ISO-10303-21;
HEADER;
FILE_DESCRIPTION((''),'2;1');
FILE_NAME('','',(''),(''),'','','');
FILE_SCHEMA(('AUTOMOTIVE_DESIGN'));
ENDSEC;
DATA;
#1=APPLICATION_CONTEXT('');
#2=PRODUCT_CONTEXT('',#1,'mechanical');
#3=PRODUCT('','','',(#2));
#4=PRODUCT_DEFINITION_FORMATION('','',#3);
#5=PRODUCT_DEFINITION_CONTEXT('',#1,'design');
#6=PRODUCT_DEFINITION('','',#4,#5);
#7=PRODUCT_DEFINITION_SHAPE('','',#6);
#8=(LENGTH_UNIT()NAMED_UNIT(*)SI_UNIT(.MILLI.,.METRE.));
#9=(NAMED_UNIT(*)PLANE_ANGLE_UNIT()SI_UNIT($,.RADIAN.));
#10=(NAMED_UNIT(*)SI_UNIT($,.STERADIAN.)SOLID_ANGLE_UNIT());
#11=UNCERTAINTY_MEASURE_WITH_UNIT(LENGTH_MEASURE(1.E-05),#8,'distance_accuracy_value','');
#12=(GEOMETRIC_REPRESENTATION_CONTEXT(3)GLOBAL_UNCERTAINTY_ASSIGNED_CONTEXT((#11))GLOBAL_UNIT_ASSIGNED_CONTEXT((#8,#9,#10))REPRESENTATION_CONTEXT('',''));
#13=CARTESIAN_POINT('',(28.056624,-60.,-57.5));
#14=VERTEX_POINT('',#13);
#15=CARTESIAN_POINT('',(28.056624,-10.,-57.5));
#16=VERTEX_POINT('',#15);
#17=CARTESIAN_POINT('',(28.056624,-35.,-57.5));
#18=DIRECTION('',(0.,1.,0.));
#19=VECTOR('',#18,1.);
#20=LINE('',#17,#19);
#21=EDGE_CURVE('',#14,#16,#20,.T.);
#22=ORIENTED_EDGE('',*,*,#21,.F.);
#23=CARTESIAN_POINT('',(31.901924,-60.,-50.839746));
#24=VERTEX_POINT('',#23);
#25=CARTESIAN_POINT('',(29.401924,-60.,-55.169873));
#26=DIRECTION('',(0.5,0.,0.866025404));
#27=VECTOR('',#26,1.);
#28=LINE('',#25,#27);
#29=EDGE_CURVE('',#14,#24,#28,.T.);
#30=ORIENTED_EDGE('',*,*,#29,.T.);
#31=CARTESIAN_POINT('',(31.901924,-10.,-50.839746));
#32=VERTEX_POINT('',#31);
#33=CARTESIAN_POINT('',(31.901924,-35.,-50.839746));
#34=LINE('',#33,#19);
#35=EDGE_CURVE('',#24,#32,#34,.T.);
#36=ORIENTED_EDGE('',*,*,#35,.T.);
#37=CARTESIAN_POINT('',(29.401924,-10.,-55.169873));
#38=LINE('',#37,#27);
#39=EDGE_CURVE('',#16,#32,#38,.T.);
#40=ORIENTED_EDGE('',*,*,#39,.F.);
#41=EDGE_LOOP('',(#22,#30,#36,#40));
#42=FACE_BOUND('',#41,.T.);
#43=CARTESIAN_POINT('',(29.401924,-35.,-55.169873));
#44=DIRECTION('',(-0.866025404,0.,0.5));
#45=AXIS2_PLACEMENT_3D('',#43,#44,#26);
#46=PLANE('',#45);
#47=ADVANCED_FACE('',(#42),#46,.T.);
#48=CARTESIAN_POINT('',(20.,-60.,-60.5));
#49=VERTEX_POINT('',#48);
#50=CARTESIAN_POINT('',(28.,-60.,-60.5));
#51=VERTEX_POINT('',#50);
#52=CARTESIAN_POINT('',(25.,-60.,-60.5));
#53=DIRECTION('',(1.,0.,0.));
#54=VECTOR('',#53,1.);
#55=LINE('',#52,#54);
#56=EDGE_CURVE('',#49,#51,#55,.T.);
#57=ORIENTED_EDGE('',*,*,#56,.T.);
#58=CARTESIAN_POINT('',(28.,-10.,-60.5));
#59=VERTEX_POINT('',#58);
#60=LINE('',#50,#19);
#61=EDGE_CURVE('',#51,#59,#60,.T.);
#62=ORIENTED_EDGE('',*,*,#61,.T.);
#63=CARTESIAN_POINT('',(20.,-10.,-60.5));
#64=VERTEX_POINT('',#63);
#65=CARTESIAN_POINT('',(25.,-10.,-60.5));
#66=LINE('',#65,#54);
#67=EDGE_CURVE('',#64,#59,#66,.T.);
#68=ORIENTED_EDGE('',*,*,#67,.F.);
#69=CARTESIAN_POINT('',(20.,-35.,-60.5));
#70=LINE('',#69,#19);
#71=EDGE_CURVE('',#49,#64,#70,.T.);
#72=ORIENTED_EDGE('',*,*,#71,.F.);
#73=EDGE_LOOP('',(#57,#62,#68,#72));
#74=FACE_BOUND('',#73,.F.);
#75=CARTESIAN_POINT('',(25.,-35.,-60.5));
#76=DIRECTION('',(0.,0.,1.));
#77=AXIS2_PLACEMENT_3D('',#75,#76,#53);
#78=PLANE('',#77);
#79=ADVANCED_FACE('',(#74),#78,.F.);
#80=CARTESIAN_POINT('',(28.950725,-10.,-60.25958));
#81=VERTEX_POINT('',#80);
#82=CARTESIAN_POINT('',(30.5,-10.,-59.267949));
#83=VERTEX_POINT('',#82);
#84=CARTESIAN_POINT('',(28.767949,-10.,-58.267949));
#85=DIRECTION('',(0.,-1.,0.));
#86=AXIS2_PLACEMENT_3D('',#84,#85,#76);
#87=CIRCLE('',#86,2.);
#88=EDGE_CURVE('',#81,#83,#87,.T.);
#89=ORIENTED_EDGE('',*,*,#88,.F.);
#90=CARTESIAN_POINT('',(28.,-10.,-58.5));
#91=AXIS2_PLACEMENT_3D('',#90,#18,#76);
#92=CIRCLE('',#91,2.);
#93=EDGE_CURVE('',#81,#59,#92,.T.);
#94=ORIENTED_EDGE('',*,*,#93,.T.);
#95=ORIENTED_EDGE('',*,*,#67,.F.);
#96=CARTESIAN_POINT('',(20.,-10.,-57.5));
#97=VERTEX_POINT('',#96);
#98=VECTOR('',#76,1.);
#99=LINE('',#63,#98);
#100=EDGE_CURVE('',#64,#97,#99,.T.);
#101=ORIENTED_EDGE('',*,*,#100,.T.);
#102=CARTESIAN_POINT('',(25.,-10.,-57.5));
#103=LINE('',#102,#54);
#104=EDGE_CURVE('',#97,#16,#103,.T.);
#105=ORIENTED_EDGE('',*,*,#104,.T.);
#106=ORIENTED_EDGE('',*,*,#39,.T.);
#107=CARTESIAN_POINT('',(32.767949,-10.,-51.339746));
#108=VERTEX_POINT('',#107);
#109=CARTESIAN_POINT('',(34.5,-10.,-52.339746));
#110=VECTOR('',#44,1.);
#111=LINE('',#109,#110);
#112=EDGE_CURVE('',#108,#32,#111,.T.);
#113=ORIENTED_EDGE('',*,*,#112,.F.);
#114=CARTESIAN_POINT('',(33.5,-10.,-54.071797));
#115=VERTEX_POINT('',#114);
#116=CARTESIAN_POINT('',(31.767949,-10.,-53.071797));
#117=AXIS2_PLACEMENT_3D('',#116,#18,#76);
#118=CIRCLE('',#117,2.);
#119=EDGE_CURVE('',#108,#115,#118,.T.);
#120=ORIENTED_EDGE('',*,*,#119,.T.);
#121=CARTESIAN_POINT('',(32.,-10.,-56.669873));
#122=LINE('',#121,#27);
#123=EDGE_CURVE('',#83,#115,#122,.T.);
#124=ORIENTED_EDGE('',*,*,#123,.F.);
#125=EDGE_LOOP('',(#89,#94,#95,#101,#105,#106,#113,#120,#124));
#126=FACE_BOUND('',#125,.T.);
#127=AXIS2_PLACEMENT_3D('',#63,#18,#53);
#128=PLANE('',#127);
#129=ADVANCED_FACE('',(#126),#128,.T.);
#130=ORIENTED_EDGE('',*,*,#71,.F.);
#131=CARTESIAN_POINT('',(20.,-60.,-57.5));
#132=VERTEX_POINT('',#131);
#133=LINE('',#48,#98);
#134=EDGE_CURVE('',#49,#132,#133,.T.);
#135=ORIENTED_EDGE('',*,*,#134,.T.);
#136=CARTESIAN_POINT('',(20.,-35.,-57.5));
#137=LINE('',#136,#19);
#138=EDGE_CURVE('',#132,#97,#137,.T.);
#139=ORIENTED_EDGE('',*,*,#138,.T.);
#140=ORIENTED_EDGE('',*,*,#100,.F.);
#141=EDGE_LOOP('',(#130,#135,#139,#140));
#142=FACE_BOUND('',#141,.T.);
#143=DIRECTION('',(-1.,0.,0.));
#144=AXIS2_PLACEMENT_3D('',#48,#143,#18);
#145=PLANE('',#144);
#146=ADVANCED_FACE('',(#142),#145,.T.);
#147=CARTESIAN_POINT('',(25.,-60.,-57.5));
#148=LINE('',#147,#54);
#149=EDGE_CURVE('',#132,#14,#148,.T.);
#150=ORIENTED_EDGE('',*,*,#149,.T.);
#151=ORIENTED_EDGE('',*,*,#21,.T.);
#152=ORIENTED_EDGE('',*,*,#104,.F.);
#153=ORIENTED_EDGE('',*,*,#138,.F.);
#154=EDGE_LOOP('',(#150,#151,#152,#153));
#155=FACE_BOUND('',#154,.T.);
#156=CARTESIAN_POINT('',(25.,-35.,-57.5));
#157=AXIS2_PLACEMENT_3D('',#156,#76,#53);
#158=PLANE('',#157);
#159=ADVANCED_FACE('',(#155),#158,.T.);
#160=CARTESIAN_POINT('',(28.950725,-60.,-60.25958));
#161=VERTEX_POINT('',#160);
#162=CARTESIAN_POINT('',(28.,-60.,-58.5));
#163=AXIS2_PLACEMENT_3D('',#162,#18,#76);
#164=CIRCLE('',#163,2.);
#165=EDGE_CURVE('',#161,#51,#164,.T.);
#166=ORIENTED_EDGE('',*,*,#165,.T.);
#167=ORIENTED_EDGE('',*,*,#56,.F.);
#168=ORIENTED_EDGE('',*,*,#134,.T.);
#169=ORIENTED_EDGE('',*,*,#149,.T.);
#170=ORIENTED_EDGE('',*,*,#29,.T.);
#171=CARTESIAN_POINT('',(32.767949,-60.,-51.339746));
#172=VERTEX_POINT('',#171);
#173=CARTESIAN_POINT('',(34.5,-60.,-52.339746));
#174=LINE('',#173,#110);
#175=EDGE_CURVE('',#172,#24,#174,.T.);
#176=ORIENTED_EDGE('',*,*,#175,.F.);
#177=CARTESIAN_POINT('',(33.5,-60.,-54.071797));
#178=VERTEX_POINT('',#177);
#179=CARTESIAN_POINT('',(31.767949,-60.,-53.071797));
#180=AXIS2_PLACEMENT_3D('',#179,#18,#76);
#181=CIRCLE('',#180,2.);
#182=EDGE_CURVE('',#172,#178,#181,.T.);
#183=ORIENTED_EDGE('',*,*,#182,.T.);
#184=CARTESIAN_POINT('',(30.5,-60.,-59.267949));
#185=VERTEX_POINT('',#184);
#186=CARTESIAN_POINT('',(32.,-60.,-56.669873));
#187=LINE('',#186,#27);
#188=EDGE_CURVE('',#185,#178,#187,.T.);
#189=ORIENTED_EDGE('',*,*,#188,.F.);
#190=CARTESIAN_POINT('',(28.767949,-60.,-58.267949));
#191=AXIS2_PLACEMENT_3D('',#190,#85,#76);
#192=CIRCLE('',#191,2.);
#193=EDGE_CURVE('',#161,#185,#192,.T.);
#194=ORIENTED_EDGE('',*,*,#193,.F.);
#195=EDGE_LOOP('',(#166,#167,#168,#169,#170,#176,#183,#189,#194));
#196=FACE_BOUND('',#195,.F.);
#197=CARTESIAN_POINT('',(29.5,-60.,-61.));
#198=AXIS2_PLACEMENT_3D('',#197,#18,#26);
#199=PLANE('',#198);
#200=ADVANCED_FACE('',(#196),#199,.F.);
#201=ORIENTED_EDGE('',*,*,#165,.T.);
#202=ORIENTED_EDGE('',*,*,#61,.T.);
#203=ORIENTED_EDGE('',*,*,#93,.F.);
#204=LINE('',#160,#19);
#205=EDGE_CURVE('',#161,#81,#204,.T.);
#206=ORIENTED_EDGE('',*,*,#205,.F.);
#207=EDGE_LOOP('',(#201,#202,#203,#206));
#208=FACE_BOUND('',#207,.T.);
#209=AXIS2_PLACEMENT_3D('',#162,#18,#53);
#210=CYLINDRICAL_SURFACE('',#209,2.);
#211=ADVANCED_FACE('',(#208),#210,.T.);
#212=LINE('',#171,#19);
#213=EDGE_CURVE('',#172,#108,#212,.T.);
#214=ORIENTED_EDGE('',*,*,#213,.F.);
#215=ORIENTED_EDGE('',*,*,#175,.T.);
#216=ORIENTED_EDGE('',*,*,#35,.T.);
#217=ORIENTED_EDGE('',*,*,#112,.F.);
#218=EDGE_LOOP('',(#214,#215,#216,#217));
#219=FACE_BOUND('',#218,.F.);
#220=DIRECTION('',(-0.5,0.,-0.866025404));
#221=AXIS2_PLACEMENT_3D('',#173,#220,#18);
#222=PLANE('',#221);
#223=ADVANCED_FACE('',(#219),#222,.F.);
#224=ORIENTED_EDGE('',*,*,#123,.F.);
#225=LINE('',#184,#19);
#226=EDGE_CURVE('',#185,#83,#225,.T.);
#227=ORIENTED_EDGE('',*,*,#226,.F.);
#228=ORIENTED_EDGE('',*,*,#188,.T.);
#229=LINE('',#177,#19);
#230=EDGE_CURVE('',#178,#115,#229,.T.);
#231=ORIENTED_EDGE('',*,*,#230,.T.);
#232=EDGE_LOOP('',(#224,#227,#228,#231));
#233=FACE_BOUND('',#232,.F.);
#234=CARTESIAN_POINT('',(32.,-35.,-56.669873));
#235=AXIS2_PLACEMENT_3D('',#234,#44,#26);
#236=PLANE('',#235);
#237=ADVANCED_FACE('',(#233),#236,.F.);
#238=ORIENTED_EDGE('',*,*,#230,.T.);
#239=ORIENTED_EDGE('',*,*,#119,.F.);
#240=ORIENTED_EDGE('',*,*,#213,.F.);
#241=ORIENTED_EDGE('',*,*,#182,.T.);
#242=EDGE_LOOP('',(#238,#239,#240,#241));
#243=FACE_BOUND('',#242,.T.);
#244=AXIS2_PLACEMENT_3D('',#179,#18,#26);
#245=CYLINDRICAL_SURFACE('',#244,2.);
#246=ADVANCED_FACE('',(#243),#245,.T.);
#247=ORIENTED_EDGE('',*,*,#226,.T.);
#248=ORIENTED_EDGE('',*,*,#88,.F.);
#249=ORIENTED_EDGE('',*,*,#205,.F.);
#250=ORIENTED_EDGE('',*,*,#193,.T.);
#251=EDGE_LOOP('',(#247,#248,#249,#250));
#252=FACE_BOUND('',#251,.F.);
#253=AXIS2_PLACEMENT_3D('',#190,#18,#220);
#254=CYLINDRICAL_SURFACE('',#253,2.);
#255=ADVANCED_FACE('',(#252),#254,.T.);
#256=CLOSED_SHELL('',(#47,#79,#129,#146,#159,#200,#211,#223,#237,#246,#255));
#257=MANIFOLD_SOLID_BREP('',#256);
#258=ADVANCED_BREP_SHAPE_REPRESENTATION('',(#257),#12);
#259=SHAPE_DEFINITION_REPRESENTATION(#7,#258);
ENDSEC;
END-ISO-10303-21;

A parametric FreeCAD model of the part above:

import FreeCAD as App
import Part
import Sketcher
Q = App.Units.Quantity


def edges_at(feature, points):
    """Names of the edges that pass closest to the given points."""
    edges = feature.Shape.Edges
    near = lambda p: min(range(len(edges)), key=lambda i: edges[i].distToShape(Part.Vertex(*p))[0])
    return sorted({f"Edge{near(p) + 1}" for p in points})


def add_polygon(sketch, points):
    """Adds a closed chain of lines whose ends are joined by coincident constraints."""
    first, n = sketch.GeometryCount, len(points)
    for a, b in zip(points, points[1:] + points[:1]):
        sketch.addGeometry(Part.LineSegment(App.Vector(*a, 0), App.Vector(*b, 0)), False)
    for i in range(n):
        sketch.addConstraint(Sketcher.Constraint("Coincident", first + i, 2, first + (i + 1) % n, 1))

doc = App.newDocument("Part")
body = doc.addObject("PartDesign::Body", "Body")

# Sketch on XY plane
sketch1 = body.newObject("Sketcher::SketchObject", "Sketch")
sketch1.AttachmentSupport = (doc.getObject("XY_Plane"), [""])
sketch1.MapMode = "FlatFace"
sketch1.AttachmentOffset = App.Placement(App.Vector(0, 0, -60.5), App.Rotation())
add_polygon(sketch1, [(20, -10), (20, -60), (30, -60), (30, -10)])  # lines 0-3
sketch1.addConstraint([
    Sketcher.Constraint("Vertical", 0),
    Sketcher.Constraint("Horizontal", 1),
    Sketcher.Constraint("Vertical", 2),
    Sketcher.Constraint("Horizontal", 3),
    Sketcher.Constraint("DistanceX", 1, 1, 1, 2, Q("10 mm")),
    Sketcher.Constraint("DistanceY", 0, 2, 0, 1, Q("50 mm")),
    Sketcher.Constraint("DistanceX", -1, 1, 0, 2, Q("20 mm")),
    Sketcher.Constraint("DistanceY", 0, 2, -1, 1, Q("60 mm")),
])
pad1 = body.newObject("PartDesign::Pad", "Pad")
pad1.Profile = sketch1
pad1.Length = 3
doc.recompute()

fillet = body.newObject("PartDesign::Fillet", "Fillet")
fillet.Base = (pad1, edges_at(pad1, [(30, -35, -60.5)]))
fillet.Radius = 2
body2 = doc.addObject("PartDesign::Body", "Body001")

# Sketch on XY plane
sketch2 = body2.newObject("Sketcher::SketchObject", "Sketch001")
sketch2.AttachmentSupport = (doc.getObject("XY_Plane001"), [""])
sketch2.MapMode = "FlatFace"
add_polygon(sketch2, [(0, 50), (0, 0), (10, 0), (10, 50)])  # lines 0-3
sketch2.addConstraint([
    Sketcher.Constraint("Vertical", 0),
    Sketcher.Constraint("Horizontal", 1),
    Sketcher.Constraint("Vertical", 2),
    Sketcher.Constraint("Horizontal", 3),
    Sketcher.Constraint("Coincident", 0, 2, -1, 1),
    Sketcher.Constraint("DistanceX", 1, 1, 1, 2, Q("10 mm")),
    Sketcher.Constraint("DistanceY", 0, 2, 0, 1, Q("50 mm")),
])
pad2 = body2.newObject("PartDesign::Pad", "Pad001")
pad2.Profile = sketch2
pad2.Length = 3
body3 = doc.addObject("PartDesign::Body", "Body002")
doc.recompute()

body2.Placement = App.Placement(App.Vector(0, 0, 0), App.Rotation(App.Vector(0, 1, 0), 300))
boolean = body3.newObject("PartDesign::Boolean", "Boolean")
boolean.Type = "Fuse"
boolean.addObjects([body2])
body4 = doc.addObject("PartDesign::Body", "Body003")
doc.recompute()

body3.Placement = App.Placement(App.Vector(30, -60, -60.5), App.Rotation(App.Vector(0, 0, 1), 0))
boolean2 = body4.newObject("PartDesign::Boolean", "Boolean001")
boolean2.Type = "Fuse"
boolean2.addObjects([body3])
doc.recompute()

fillet2 = body4.newObject("PartDesign::Fillet", "Fillet001")
fillet2.Base = (boolean2, edges_at(boolean2, [(30, -35, -60.5), (35, -35, -51.84)]))
fillet2.Radius = 2
body5 = doc.addObject("PartDesign::Body", "Body004")
doc.recompute()

body4.Placement = App.Placement(App.Vector(-0.5, 0, -0.5), App.Rotation(App.Vector(0, 0, 1), 0))
boolean3 = body5.newObject("PartDesign::Boolean", "Boolean002")
boolean3.Type = "Fuse"
boolean3.addObjects([body4])
doc.recompute()

boolean4 = body5.newObject("PartDesign::Boolean", "Boolean003")
boolean4.Type = "Fuse"
boolean4.addObjects([body])

doc.recompute()
